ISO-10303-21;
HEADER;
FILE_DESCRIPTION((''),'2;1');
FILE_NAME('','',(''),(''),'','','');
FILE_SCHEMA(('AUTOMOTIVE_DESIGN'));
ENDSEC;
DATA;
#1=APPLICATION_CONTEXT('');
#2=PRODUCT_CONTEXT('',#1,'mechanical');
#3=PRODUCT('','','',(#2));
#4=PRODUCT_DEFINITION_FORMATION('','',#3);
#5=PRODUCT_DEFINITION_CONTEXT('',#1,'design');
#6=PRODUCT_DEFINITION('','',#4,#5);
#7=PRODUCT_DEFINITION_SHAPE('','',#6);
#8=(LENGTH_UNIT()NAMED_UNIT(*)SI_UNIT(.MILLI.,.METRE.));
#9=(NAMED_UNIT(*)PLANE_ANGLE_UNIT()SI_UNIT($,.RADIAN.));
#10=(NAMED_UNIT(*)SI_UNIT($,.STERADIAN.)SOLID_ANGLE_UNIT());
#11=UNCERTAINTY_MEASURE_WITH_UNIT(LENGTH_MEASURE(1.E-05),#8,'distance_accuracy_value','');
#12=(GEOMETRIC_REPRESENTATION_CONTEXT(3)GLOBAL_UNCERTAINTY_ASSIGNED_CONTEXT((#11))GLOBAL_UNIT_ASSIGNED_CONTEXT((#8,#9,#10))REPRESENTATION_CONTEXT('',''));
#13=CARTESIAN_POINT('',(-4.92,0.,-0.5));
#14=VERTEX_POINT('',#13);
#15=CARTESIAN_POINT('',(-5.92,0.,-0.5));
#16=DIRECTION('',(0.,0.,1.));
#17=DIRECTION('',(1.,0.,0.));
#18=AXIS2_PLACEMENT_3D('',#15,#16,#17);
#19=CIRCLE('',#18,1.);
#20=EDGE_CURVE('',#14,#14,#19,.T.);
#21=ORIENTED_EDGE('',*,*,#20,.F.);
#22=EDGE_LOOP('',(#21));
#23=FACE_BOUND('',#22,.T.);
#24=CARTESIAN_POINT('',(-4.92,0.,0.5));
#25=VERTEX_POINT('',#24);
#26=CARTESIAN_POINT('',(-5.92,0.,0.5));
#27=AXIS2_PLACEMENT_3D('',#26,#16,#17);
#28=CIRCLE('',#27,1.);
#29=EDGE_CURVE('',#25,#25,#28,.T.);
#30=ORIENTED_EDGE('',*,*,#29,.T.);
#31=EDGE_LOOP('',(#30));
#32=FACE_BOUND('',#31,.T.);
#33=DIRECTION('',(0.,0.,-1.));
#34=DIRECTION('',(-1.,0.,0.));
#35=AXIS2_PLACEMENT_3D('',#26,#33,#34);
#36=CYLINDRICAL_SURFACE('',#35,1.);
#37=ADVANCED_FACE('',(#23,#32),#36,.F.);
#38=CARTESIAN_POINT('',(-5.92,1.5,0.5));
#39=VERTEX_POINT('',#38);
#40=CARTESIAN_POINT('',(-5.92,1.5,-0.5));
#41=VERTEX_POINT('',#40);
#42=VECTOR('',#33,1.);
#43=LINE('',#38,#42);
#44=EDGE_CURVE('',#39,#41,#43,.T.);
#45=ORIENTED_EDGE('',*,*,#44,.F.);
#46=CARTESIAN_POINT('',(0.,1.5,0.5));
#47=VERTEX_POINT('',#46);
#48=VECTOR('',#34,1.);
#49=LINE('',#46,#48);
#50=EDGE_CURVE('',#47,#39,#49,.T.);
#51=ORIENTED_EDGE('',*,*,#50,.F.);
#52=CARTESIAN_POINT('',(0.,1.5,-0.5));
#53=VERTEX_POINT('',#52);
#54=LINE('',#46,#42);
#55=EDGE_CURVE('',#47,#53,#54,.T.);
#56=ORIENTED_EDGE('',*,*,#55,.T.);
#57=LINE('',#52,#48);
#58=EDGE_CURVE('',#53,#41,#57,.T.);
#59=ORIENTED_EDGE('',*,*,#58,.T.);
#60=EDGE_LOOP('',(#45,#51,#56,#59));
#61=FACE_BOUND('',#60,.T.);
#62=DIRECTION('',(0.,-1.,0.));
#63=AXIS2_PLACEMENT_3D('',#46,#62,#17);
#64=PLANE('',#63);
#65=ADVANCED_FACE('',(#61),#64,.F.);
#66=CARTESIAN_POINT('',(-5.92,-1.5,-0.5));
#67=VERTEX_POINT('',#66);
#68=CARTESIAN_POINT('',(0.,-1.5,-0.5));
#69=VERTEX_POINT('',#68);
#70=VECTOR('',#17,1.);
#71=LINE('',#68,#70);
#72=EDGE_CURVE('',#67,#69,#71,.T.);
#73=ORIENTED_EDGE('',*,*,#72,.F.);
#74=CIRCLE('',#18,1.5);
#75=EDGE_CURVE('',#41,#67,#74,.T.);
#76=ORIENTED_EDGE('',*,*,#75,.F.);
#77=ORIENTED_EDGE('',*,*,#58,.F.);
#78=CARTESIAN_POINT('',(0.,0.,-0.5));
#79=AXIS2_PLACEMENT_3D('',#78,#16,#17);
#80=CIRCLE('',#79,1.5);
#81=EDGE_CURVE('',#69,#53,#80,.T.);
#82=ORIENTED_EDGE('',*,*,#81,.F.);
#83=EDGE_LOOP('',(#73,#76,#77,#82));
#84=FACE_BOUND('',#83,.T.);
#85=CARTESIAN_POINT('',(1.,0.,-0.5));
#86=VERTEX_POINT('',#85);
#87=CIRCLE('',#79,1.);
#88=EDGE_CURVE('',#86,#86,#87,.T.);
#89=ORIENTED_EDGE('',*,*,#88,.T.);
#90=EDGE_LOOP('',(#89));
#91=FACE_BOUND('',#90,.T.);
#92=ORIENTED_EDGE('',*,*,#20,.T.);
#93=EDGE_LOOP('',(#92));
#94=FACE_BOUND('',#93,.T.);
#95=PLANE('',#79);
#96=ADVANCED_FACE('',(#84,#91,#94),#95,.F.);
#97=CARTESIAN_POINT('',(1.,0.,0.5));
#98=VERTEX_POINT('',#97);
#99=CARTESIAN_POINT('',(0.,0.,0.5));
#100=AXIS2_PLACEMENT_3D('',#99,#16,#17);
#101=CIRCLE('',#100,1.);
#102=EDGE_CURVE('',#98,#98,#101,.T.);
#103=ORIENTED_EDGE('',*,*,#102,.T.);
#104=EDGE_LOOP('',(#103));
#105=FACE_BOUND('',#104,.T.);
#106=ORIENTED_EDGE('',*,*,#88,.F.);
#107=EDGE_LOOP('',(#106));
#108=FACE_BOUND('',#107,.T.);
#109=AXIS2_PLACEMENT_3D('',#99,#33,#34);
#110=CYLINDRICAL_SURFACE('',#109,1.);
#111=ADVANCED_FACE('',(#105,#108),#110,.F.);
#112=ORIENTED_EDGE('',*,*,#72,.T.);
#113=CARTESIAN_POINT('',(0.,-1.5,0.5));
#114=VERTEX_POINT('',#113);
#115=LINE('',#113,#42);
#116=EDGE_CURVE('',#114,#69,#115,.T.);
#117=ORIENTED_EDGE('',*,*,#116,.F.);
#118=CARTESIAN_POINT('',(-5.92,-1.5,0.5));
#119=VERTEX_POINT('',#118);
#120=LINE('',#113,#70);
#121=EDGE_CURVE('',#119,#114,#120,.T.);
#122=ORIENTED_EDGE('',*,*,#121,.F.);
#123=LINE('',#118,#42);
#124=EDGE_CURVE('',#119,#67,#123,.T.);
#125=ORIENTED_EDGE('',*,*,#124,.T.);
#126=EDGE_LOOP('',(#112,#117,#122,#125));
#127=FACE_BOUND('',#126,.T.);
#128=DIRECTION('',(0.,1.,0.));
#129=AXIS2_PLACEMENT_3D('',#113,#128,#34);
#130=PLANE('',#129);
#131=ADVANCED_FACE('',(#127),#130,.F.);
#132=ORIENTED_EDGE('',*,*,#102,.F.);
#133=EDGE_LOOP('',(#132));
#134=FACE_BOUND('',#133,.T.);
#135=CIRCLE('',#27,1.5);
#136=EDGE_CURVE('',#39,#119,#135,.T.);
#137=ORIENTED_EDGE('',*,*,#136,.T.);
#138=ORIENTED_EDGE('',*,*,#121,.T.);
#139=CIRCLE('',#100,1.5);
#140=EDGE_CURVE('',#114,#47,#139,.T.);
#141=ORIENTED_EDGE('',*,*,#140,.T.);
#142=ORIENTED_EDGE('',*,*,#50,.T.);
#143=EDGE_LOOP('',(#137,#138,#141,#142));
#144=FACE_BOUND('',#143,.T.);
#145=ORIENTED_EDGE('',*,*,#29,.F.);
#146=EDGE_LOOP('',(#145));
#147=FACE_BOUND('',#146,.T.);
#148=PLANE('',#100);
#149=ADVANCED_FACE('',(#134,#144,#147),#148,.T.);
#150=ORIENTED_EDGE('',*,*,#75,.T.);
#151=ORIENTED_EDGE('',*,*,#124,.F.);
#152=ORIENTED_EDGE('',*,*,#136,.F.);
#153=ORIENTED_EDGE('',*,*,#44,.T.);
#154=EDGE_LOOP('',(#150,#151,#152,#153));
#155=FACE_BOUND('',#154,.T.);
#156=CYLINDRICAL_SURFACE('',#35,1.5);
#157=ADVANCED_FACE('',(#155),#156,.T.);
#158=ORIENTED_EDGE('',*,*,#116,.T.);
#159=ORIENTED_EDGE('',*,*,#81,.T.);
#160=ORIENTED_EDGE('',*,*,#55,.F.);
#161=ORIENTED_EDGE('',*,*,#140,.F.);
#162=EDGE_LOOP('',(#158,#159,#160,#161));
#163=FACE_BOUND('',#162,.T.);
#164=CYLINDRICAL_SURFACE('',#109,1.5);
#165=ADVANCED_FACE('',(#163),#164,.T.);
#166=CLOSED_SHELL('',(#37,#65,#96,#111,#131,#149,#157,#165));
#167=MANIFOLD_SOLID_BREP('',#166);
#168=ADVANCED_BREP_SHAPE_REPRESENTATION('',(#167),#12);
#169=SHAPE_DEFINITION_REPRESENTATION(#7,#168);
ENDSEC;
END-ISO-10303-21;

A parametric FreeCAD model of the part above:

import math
import FreeCAD as App
import Part
import Sketcher
Q = App.Units.Quantity

doc = App.newDocument("Part")
params = doc.addObject("Spreadsheet::Sheet", "Params")
for row, (alias, value) in enumerate([
    ("sketch1_diameter", "2 mm"),
    ("sketch1_radius", "1.5 mm"),
    ("sketch1_width", "5.92 mm"),
    ("pad1_length", "1 mm"),
], start=1):
    params.set(f"A{row}", alias)
    params.set(f"B{row}", "=" + value)
    params.setAlias(f"B{row}", alias)

body = doc.addObject("PartDesign::Body", "Body")

# Sketch on XY plane
sketch1 = body.newObject("Sketcher::SketchObject", "Sketch")
sketch1.AttachmentSupport = (doc.getObject("XY_Plane"), [""])
sketch1.MapMode = "FlatFace"
sketch1.addGeometry(Part.LineSegment(App.Vector(-5.9, -1.5, 0), App.Vector(0, -1.5, 0)), False)
sketch1.addGeometry(Part.ArcOfCircle(Part.Circle(App.Vector(0, 0, 0), App.Vector(0, 0, 1), 1.5), math.radians(-90), math.radians(90)), False)
sketch1.addGeometry(Part.LineSegment(App.Vector(0, 1.5, 0), App.Vector(-5.9, 1.5, 0)), False)
sketch1.addGeometry(Part.ArcOfCircle(Part.Circle(App.Vector(-5.9, 0, 0), App.Vector(0, 0, 1), 1.5), math.radians(90), math.radians(270)), False)
sketch1.addGeometry(Part.Circle(App.Vector(0, 0, 0), App.Vector(0, 0, 1), 1), False)
sketch1.addGeometry(Part.Circle(App.Vector(-5.9, 0, 0), App.Vector(0, 0, 1), 1), False)
sketch1.addConstraint(Sketcher.Constraint("Tangent", 0, 2, 1, 1))
sketch1.addConstraint(Sketcher.Constraint("Tangent", 1, 2, 2, 1))
sketch1.addConstraint(Sketcher.Constraint("Tangent", 2, 2, 3, 1))
sketch1.addConstraint(Sketcher.Constraint("Tangent", 3, 2, 0, 1))
sketch1.addConstraint(Sketcher.Constraint("Horizontal", 0))
sketch1.addConstraint(Sketcher.Constraint("Horizontal", 2))
sketch1.addConstraint(Sketcher.Constraint("Coincident", 1, 3, -1, 1))
sketch1.addConstraint(Sketcher.Constraint("Coincident", 4, 3, -1, 1))
sketch1.addConstraint(Sketcher.Constraint("Coincident", 5, 3, 3, 3))
sketch1.addConstraint(Sketcher.Constraint("Equal", 4, 5))
sketch1.addConstraint(Sketcher.Constraint("Diameter", 4, Q("2 mm")))
sketch1.addConstraint(Sketcher.Constraint("Radius", 1, Q("1.5 mm")))
sketch1.addConstraint(Sketcher.Constraint("DistanceX", 0, 1, 0, 2, Q("5.92 mm")))
sketch1.setExpression("Constraints[10]", "Params.sketch1_diameter")
sketch1.setExpression("Constraints[11]", "Params.sketch1_radius")
sketch1.setExpression("Constraints[12]", "Params.sketch1_width")
pad1 = body.newObject("PartDesign::Pad", "Pad")
pad1.Profile = sketch1
pad1.setExpression("Length", "Params.pad1_length")
pad1.Midplane = True

doc.recompute()
